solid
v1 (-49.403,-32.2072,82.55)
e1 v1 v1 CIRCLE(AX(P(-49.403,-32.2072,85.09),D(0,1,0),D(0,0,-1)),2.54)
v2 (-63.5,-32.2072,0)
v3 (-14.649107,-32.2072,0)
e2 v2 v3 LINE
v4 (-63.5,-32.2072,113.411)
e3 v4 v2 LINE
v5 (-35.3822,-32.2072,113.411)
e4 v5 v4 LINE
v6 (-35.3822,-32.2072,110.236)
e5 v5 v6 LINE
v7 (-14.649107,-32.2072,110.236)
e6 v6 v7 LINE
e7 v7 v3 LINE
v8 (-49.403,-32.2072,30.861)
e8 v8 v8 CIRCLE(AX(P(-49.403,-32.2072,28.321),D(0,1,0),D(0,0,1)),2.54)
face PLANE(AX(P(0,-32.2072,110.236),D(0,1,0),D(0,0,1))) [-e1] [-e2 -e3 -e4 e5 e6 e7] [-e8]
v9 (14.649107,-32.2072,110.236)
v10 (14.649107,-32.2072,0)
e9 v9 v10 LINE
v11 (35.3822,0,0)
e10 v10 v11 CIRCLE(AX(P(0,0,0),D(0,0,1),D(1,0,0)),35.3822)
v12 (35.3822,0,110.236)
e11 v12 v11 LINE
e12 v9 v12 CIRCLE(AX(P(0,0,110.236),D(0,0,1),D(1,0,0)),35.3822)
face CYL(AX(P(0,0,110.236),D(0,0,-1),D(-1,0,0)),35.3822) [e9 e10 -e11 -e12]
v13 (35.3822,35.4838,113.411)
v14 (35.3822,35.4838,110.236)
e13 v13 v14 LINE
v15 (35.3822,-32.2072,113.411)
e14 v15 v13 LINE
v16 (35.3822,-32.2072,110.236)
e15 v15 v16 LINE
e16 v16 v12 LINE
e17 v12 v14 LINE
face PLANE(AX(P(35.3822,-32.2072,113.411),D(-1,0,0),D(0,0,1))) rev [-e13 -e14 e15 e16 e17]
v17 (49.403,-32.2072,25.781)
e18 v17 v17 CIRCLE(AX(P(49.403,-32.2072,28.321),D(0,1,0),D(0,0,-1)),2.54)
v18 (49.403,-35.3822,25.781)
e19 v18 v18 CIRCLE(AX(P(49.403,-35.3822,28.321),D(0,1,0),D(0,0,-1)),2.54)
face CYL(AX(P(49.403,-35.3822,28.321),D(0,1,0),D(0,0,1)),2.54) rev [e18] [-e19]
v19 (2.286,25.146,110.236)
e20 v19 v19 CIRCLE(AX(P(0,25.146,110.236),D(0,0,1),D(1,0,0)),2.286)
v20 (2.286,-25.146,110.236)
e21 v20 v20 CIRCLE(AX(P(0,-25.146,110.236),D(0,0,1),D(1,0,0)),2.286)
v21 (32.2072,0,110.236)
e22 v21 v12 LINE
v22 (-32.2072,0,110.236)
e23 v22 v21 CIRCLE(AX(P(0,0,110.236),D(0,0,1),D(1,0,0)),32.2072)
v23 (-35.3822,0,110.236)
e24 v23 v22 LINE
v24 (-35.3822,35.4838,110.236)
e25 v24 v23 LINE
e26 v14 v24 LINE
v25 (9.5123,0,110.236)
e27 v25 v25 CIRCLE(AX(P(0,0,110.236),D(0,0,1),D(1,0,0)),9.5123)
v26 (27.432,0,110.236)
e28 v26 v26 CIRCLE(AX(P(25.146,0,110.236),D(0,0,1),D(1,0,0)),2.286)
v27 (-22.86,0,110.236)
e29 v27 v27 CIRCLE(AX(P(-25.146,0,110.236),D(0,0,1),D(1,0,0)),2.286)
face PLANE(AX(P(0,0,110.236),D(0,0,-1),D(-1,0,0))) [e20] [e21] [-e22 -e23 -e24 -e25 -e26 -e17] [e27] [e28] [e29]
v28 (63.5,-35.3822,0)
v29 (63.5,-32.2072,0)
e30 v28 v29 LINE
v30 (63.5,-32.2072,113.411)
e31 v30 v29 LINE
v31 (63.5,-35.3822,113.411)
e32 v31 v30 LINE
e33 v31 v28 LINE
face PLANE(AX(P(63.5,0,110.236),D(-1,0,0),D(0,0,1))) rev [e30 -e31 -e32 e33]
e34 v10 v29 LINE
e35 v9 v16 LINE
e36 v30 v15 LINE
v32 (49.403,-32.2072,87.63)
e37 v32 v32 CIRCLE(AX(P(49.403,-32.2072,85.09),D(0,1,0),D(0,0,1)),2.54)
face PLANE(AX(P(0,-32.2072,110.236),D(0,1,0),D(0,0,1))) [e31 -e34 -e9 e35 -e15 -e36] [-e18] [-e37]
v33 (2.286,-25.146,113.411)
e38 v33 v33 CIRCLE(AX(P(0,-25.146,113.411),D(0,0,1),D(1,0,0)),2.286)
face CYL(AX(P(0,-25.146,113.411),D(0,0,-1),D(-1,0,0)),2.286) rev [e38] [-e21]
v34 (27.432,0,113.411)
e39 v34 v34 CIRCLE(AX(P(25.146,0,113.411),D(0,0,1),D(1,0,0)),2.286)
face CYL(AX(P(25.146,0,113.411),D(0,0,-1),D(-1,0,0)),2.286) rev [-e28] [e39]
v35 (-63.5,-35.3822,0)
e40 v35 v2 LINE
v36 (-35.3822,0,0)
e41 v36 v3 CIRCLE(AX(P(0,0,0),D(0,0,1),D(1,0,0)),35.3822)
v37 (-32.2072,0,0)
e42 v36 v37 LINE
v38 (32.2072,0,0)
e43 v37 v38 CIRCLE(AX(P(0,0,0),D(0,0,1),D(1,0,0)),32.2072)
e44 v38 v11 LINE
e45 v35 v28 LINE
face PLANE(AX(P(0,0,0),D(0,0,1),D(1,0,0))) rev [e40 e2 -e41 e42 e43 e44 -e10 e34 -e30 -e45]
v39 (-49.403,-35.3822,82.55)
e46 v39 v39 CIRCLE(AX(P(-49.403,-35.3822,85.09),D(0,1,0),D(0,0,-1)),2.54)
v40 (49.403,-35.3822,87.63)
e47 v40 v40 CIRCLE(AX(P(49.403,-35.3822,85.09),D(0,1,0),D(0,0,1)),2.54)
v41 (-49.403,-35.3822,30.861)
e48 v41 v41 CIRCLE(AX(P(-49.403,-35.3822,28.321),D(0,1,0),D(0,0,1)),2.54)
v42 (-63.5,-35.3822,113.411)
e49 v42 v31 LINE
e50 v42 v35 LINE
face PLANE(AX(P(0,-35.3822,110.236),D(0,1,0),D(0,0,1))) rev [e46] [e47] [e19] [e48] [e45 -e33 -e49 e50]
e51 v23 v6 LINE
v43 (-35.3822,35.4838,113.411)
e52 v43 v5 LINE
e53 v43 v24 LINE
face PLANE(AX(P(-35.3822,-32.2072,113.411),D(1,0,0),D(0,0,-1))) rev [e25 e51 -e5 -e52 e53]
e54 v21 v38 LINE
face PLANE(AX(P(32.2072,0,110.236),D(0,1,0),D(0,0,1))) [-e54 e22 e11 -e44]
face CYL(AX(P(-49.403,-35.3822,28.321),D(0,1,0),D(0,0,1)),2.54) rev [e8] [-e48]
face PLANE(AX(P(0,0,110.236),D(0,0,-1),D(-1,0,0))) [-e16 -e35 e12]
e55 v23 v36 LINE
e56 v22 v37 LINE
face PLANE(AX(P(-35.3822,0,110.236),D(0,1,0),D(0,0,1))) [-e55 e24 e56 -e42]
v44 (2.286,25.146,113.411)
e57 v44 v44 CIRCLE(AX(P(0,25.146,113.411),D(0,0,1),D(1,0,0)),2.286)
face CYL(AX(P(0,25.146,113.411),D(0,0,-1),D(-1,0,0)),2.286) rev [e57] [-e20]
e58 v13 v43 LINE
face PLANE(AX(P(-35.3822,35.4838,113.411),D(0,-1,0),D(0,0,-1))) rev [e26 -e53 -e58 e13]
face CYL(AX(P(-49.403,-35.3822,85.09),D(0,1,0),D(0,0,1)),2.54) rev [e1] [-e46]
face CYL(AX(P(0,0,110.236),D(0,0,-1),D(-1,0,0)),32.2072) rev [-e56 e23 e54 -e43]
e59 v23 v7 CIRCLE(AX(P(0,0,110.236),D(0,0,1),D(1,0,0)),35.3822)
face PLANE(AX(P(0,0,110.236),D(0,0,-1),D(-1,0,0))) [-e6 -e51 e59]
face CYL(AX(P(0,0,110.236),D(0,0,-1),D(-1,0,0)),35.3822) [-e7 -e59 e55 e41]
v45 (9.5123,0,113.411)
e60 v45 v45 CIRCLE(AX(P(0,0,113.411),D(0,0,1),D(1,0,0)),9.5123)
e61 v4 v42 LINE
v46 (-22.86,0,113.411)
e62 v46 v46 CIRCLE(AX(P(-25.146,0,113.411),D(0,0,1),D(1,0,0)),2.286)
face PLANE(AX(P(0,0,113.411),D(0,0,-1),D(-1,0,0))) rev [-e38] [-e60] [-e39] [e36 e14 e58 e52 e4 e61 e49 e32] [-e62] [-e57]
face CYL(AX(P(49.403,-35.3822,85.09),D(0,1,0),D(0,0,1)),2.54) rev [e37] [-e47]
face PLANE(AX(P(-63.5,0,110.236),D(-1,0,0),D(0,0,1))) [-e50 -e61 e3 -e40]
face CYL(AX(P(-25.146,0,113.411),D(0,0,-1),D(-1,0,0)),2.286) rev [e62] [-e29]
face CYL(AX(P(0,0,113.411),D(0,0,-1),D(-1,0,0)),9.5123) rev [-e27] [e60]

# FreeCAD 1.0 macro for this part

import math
import FreeCAD as App
import Part
import Sketcher
Q = App.Units.Quantity


def add_polygon(sketch, points):
    """Adds a closed chain of lines whose ends are joined by coincident constraints."""
    first, n = sketch.GeometryCount, len(points)
    for a, b in zip(points, points[1:] + points[:1]):
        sketch.addGeometry(Part.LineSegment(App.Vector(*a, 0), App.Vector(*b, 0)), False)
    for i in range(n):
        sketch.addConstraint(Sketcher.Constraint("Coincident", first + i, 2, first + (i + 1) % n, 1))

doc = App.newDocument("Part")
body = doc.addObject("PartDesign::Body", "Body")

# Sketch on XY plane
sketch1 = doc.addObject("Sketcher::SketchObject", "Sketch")
body.addObject(sketch1)
sketch1.AttachmentSupport = (doc.XY_Plane, [""])
sketch1.MapMode = "FlatFace"
sketch1.addGeometry(Part.ArcOfCircle(Part.Circle(App.Vector(0, 0, 0), App.Vector(0, 0, 1), 35.4), math.radians(180), math.radians(246)), False)
sketch1.addGeometry(Part.LineSegment(App.Vector(-14.6, -32.2, 0), App.Vector(-63.5, -32.2, 0)), False)
sketch1.addGeometry(Part.LineSegment(App.Vector(-63.5, -32.2, 0), App.Vector(-63.5, -35.4, 0)), False)
sketch1.addGeometry(Part.LineSegment(App.Vector(-63.5, -35.4, 0), App.Vector(63.5, -35.4, 0)), False)
sketch1.addGeometry(Part.LineSegment(App.Vector(63.5, -35.4, 0), App.Vector(63.5, -32.2, 0)), False)
sketch1.addGeometry(Part.LineSegment(App.Vector(63.5, -32.2, 0), App.Vector(14.6, -32.2, 0)), False)
sketch1.addGeometry(Part.ArcOfCircle(Part.Circle(App.Vector(0, 0, 0), App.Vector(0, 0, 1), 35.4), math.radians(-66), math.radians(0)), False)
sketch1.addGeometry(Part.LineSegment(App.Vector(35.4, 0, 0), App.Vector(32.2, 0, 0)), False)
sketch1.addGeometry(Part.ArcOfCircle(Part.Circle(App.Vector(0, 0, 0), App.Vector(0, 0, 1), 32.2), math.radians(180), math.radians(360)), False)
sketch1.addGeometry(Part.LineSegment(App.Vector(-32.2, 0, 0), App.Vector(-35.4, 0, 0)), False)
sketch1.addConstraint(Sketcher.Constraint("Coincident", 0, 2, 1, 1))
sketch1.addConstraint(Sketcher.Constraint("Coincident", 1, 2, 2, 1))
sketch1.addConstraint(Sketcher.Constraint("Coincident", 2, 2, 3, 1))
sketch1.addConstraint(Sketcher.Constraint("Coincident", 3, 2, 4, 1))
sketch1.addConstraint(Sketcher.Constraint("Coincident", 4, 2, 5, 1))
sketch1.addConstraint(Sketcher.Constraint("Coincident", 5, 2, 6, 1))
sketch1.addConstraint(Sketcher.Constraint("Coincident", 6, 2, 7, 1))
sketch1.addConstraint(Sketcher.Constraint("Coincident", 7, 2, 8, 2))
sketch1.addConstraint(Sketcher.Constraint("Coincident", 8, 1, 9, 1))
sketch1.addConstraint(Sketcher.Constraint("Coincident", 9, 2, 0, 1))
sketch1.addConstraint(Sketcher.Constraint("Horizontal", 1))
sketch1.addConstraint(Sketcher.Constraint("Vertical", 2))
sketch1.addConstraint(Sketcher.Constraint("Horizontal", 3))
sketch1.addConstraint(Sketcher.Constraint("Vertical", 4))
sketch1.addConstraint(Sketcher.Constraint("Horizontal", 5))
sketch1.addConstraint(Sketcher.Constraint("Horizontal", 7))
sketch1.addConstraint(Sketcher.Constraint("Horizontal", 9))
sketch1.addConstraint(Sketcher.Constraint("Coincident", 0, 3, -1, 1))
sketch1.addConstraint(Sketcher.Constraint("Coincident", 6, 3, -1, 1))
sketch1.addConstraint(Sketcher.Constraint("Coincident", 8, 3, -1, 1))
sketch1.addConstraint(Sketcher.Constraint("Equal", 0, 6))
sketch1.addConstraint(Sketcher.Constraint("Symmetric", 1, 2, 4, 2, -2))
sketch1.addConstraint(Sketcher.Constraint("PointOnObject", 6, 2, -1))
sketch1.addConstraint(Sketcher.Constraint("PointOnObject", 8, 1, -1))
sketch1.addConstraint(Sketcher.Constraint("Equal", 9, 2))
sketch1.addConstraint(Sketcher.Constraint("DistanceX", 3, 1, 3, 2, Q("5 in")))
sketch1.addConstraint(Sketcher.Constraint("Radius", 0, Q("1.393 in")))
sketch1.addConstraint(Sketcher.Constraint("Radius", 8, Q("1.268 in")))
sketch1.addConstraint(Sketcher.Constraint("DistanceY", 0, 2, -1, 1, Q("1.268 in")))
pad1 = doc.addObject("PartDesign::Pad", "Pad")
body.addObject(pad1)
pad1.Profile = sketch1
pad1.Length = Q("4.34 in")

# Sketch on XY plane
sketch2 = doc.addObject("Sketcher::SketchObject", "Sketch001")
body.addObject(sketch2)
sketch2.AttachmentSupport = (doc.XY_Plane, [""])
sketch2.MapMode = "FlatFace"
sketch2.AttachmentOffset = App.Placement(App.Vector(0, 0, 4.34 * 25.4), App.Rotation())
add_polygon(sketch2, [(63.5, -35.4), (63.5, -32.2), (35.4, -32.2), (35.4, 35.5), (-35.4, 35.5), (-35.4, -32.2), (-63.5, -32.2), (-63.5, -35.4)])  # lines 0-7
sketch2.addGeometry(Part.Circle(App.Vector(0, -25.1, 0), App.Vector(0, 0, 1), 2.3), False)  # 8
sketch2.addGeometry(Part.Circle(App.Vector(-25.1, 0, 0), App.Vector(0, 0, 1), 2.3), False)  # 9
sketch2.addGeometry(Part.Circle(App.Vector(0, 0, 0), App.Vector(0, 0, 1), 9.5), False)  # 10
sketch2.addGeometry(Part.Circle(App.Vector(25.1, 0, 0), App.Vector(0, 0, 1), 2.3), False)  # 11
sketch2.addGeometry(Part.Circle(App.Vector(0, 25.1, 0), App.Vector(0, 0, 1), 2.3), False)  # 12
sketch2.addConstraint(Sketcher.Constraint("Vertical", 0))
sketch2.addConstraint(Sketcher.Constraint("Horizontal", 1))
sketch2.addConstraint(Sketcher.Constraint("Vertical", 2))
sketch2.addConstraint(Sketcher.Constraint("Horizontal", 3))
sketch2.addConstraint(Sketcher.Constraint("Vertical", 4))
sketch2.addConstraint(Sketcher.Constraint("Horizontal", 5))
sketch2.addConstraint(Sketcher.Constraint("Vertical", 6))
sketch2.addConstraint(Sketcher.Constraint("Horizontal", 7))
sketch2.addConstraint(Sketcher.Constraint("Coincident", 10, 3, -1, 1))
sketch2.addConstraint(Sketcher.Constraint("Equal", 8, 9))
sketch2.addConstraint(Sketcher.Constraint("Equal", 9, 11))
sketch2.addConstraint(Sketcher.Constraint("Equal", 11, 12))
sketch2.addConstraint(Sketcher.Constraint("Symmetric", 9, 3, 11, 3, -1, 1))
sketch2.addConstraint(Sketcher.Constraint("Symmetric", 8, 3, 12, 3, -1, 1))
sketch2.addConstraint(Sketcher.Constraint("Symmetric", 1, 2, 4, 2, -2))
sketch2.addConstraint(Sketcher.Constraint("PointOnObject", 8, 3, -2))
sketch2.addConstraint(Sketcher.Constraint("PointOnObject", 9, 3, -1))
sketch2.addConstraint(Sketcher.Constraint("Equal", 1, 5))
sketch2.addConstraint(Sketcher.Constraint("Diameter", 8, Q("0.18 in")))
sketch2.addConstraint(Sketcher.Constraint("DistanceX", 7, 1, 7, 2, Q("5 in")))
sketch2.addConstraint(Sketcher.Constraint("Diameter", 10, Q("0.749 in")))
sketch2.addConstraint(Sketcher.Constraint("DistanceX", 1, 2, 1, 1, Q("1.107 in")))
sketch2.addConstraint(Sketcher.Constraint("DistanceY", 0, 1, 0, 2, Q("0.125 in")))
sketch2.addConstraint(Sketcher.Constraint("DistanceY", 2, 1, 2, 2, Q("2.665 in")))
sketch2.addConstraint(Sketcher.Constraint("DistanceY", 8, 3, -1, 1, Q("0.99 in")))
sketch2.addConstraint(Sketcher.Constraint("DistanceX", 9, 3, -1, 1, Q("0.99 in")))
sketch2.addConstraint(Sketcher.Constraint("DistanceY", 0, 2, -1, 1, Q("1.268 in")))
pad2 = doc.addObject("PartDesign::Pad", "Pad001")
body.addObject(pad2)
pad2.Profile = sketch2
pad2.Length = Q("0.125 in")

# Sketch on XZ plane
sketch3 = doc.addObject("Sketcher::SketchObject", "Sketch002")
body.addObject(sketch3)
sketch3.AttachmentSupport = (doc.XZ_Plane, [""])
sketch3.MapMode = "FlatFace"
sketch3.AttachmentOffset = App.Placement(App.Vector(0, 0, 1.268 * 25.4), App.Rotation())
sketch3.addGeometry(Part.Circle(App.Vector(49.4, 85.1, 0), App.Vector(0, 0, 1), 2.5), False)
sketch3.addGeometry(Part.Circle(App.Vector(49.4, 28.3, 0), App.Vector(0, 0, 1), 2.5), False)
sketch3.addGeometry(Part.Circle(App.Vector(-49.4, 85.1, 0), App.Vector(0, 0, 1), 2.5), False)
sketch3.addGeometry(Part.Circle(App.Vector(-49.4, 28.3, 0), App.Vector(0, 0, 1), 2.5), False)
sketch3.addConstraint(Sketcher.Constraint("Equal", 0, 1))
sketch3.addConstraint(Sketcher.Constraint("Equal", 1, 2))
sketch3.addConstraint(Sketcher.Constraint("Equal", 2, 3))
sketch3.addConstraint(Sketcher.Constraint("Symmetric", 0, 3, 2, 3, -2))
sketch3.addConstraint(Sketcher.Constraint("Symmetric", 1, 3, 3, 3, -2))
sketch3.addConstraint(Sketcher.Constraint("Vertical", 0, 3, 1, 3))
sketch3.addConstraint(Sketcher.Constraint("Diameter", 0, Q("0.2 in")))
sketch3.addConstraint(Sketcher.Constraint("DistanceY", -1, 1, 0, 3, Q("3.35 in")))
sketch3.addConstraint(Sketcher.Constraint("DistanceX", 2, 3, 0, 3, Q("3.89 in")))
sketch3.addConstraint(Sketcher.Constraint("DistanceY", -1, 1, 1, 3, Q("1.115 in")))
pocket1 = doc.addObject("PartDesign::Pocket", "Pocket")
body.addObject(pocket1)
pocket1.Profile = sketch3
pocket1.Type = "ThroughAll"
pocket1.Reversed = True

doc.recompute()
